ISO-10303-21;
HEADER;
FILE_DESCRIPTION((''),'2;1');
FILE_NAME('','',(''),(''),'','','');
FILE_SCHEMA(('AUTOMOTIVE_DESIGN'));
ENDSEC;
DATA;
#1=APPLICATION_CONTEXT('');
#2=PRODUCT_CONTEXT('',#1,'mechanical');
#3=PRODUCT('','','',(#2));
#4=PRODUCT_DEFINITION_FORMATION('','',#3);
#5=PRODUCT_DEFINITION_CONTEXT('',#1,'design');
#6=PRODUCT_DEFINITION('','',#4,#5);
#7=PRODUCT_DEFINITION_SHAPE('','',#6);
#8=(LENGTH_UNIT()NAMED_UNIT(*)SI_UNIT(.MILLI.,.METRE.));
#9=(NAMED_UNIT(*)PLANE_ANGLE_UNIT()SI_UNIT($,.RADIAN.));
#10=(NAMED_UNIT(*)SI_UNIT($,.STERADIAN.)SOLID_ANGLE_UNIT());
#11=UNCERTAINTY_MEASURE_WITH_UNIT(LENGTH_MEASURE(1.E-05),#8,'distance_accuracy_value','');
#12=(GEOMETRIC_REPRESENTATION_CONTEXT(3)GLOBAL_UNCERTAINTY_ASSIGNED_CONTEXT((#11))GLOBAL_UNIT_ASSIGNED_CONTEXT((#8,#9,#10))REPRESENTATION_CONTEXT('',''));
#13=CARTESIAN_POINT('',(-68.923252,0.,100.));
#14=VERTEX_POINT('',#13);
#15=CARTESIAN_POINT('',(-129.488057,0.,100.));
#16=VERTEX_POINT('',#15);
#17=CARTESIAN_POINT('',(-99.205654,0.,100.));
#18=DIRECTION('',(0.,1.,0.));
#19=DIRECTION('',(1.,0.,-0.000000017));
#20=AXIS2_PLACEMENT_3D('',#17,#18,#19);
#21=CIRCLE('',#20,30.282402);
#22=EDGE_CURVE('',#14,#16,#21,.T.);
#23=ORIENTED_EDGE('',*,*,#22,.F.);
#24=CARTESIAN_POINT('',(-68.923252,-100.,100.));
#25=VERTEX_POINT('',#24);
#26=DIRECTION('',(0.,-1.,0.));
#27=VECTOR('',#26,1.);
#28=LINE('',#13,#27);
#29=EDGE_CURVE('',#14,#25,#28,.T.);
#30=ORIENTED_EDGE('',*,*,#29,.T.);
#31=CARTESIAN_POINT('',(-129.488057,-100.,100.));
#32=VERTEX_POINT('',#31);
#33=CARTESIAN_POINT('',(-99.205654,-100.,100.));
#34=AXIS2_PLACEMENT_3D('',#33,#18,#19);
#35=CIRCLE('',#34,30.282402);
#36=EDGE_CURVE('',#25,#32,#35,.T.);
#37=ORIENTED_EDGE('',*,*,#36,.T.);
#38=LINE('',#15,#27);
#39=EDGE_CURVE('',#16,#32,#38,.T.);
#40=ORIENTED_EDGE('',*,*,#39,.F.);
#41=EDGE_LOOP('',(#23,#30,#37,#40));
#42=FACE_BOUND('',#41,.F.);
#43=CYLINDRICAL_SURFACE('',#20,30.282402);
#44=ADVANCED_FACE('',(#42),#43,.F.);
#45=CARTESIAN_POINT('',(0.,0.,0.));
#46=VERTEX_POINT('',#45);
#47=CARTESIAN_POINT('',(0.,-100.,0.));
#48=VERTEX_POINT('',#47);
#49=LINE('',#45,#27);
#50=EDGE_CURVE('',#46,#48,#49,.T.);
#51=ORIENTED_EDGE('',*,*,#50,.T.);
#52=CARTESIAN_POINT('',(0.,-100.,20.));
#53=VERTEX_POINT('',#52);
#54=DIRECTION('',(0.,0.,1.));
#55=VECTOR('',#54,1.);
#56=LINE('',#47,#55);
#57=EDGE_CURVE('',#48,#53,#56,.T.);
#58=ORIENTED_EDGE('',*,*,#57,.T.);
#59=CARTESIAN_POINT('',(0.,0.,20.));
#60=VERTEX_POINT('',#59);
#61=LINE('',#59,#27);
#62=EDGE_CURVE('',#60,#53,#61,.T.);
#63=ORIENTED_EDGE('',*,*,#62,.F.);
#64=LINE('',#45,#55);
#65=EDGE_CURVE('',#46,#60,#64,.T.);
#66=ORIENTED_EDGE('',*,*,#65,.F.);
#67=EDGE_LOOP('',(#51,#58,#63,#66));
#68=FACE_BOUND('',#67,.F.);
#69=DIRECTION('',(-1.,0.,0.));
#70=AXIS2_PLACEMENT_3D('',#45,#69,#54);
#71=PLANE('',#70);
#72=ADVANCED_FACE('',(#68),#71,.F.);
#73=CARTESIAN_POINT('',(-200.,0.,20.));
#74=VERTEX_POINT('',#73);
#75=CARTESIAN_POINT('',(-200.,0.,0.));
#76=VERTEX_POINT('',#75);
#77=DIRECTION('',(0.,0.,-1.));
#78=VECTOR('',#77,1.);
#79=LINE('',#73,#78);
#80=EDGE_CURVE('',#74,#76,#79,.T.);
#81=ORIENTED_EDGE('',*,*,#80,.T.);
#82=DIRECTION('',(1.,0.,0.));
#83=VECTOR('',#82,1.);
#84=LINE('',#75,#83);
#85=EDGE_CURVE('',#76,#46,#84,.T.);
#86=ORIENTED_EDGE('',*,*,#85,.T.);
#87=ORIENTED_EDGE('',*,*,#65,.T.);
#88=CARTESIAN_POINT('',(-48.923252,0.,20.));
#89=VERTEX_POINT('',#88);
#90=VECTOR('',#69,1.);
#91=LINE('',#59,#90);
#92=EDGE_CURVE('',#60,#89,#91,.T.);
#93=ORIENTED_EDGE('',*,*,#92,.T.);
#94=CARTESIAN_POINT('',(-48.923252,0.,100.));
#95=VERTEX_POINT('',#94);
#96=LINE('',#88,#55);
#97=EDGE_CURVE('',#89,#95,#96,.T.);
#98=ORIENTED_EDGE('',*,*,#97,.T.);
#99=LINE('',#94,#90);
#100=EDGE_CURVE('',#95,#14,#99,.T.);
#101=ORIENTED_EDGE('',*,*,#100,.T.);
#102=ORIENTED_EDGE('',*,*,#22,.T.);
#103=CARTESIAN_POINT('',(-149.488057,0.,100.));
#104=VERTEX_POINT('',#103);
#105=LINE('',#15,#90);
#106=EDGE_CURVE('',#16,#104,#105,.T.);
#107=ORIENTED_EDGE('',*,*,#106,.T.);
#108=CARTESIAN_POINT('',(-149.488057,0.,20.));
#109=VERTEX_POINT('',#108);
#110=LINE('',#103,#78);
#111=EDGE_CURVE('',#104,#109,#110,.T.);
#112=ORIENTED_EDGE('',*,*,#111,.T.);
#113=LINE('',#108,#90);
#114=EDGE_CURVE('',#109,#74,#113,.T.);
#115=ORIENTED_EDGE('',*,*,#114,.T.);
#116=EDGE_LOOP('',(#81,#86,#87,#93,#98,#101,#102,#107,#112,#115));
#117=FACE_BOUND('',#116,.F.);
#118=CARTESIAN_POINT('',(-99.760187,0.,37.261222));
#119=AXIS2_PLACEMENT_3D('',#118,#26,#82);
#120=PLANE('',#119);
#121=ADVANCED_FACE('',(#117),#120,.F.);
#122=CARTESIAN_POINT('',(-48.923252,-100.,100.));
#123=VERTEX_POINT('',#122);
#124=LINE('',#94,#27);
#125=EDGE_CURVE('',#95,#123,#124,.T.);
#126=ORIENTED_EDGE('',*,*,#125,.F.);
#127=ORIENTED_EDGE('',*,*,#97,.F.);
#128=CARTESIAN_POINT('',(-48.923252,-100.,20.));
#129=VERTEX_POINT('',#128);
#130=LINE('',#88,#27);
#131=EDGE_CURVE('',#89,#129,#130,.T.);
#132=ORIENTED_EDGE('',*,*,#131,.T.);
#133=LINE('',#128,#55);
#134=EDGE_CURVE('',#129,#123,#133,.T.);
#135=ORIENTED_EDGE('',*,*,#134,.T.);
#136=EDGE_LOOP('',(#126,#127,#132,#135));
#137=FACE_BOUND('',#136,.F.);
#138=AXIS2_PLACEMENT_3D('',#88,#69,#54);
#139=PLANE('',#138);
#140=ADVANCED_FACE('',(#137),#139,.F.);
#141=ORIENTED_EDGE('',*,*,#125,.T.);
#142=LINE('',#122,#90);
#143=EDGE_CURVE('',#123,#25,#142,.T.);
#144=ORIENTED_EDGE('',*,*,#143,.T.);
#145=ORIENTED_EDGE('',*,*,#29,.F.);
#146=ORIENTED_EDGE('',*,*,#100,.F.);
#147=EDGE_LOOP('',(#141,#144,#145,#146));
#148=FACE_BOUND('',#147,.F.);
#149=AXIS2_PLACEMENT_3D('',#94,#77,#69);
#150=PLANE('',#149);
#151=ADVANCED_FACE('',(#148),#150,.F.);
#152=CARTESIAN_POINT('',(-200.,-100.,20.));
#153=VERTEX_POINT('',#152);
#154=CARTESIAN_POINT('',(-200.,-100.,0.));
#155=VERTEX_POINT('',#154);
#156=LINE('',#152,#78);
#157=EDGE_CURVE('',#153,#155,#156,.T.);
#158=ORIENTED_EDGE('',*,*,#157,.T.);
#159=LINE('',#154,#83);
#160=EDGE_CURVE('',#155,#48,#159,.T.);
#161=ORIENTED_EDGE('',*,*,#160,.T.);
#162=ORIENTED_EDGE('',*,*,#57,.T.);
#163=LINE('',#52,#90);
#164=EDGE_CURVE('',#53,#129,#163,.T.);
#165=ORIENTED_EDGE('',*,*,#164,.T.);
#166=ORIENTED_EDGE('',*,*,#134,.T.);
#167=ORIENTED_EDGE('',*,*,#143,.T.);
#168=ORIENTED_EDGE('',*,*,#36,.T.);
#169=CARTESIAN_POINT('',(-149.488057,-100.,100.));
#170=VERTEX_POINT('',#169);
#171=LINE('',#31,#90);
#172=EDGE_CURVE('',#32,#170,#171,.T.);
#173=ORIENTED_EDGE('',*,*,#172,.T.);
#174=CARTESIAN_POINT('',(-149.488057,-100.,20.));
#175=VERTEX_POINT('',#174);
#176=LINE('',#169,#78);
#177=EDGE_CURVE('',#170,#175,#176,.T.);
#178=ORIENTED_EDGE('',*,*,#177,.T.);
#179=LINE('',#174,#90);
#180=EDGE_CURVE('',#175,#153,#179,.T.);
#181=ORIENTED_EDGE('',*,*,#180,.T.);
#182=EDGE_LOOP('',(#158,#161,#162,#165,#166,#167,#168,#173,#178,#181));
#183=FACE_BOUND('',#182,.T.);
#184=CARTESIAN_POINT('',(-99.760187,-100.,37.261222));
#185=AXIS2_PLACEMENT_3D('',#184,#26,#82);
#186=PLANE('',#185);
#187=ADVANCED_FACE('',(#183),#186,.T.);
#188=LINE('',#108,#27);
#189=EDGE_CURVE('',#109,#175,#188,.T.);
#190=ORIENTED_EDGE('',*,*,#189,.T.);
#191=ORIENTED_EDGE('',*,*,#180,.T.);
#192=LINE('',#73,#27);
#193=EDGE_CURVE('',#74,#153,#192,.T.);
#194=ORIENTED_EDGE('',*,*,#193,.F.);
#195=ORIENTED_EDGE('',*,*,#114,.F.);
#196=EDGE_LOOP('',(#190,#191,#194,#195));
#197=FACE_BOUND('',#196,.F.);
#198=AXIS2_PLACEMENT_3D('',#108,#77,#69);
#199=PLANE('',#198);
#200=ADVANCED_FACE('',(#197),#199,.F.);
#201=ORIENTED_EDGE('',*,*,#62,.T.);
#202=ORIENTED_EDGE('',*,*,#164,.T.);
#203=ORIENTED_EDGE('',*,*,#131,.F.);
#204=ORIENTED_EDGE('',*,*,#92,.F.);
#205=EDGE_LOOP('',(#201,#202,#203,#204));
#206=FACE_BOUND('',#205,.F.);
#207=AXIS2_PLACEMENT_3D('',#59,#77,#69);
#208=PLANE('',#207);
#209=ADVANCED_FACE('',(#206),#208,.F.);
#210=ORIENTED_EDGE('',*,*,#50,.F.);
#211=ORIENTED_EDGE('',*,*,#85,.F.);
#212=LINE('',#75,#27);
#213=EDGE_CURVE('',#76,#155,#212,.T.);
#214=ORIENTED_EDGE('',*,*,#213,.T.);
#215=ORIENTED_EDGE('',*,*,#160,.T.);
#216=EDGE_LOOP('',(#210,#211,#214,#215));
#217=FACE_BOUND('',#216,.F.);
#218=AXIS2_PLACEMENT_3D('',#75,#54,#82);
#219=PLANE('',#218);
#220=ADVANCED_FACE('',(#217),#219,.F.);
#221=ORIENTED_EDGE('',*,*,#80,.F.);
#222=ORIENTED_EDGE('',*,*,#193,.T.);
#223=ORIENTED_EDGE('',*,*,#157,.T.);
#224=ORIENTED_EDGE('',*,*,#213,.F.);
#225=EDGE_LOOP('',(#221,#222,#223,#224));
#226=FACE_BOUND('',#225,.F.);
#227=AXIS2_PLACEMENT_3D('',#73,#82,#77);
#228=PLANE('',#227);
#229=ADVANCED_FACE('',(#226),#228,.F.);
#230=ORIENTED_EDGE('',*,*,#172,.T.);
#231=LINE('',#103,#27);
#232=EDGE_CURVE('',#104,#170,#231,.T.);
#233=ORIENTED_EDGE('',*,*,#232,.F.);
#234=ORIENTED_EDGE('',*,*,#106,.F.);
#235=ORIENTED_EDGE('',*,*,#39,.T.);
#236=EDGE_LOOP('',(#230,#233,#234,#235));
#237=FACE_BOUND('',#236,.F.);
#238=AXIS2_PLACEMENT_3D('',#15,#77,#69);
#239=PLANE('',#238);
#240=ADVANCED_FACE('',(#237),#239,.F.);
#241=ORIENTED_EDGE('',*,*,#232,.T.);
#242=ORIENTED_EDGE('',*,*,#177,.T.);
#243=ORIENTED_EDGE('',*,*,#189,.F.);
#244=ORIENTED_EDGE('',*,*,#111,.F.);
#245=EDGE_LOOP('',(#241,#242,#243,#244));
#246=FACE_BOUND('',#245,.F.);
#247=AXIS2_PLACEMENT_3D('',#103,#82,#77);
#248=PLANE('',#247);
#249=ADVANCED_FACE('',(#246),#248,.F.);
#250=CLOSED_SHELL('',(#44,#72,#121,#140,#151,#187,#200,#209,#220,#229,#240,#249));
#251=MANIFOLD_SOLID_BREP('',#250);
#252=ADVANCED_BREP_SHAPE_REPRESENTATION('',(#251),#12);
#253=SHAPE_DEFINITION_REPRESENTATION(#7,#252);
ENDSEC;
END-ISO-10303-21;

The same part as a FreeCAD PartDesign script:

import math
import FreeCAD as App
import Part
import Sketcher

V = App.Vector
Q = App.Units.Quantity

doc = App.newDocument("Part")
params = doc.addObject("Spreadsheet::Sheet", "Params")
for row, (alias, value) in enumerate([
    ("sketch1_width", "200 mm"),
    ("sketch1_width2", "20 mm"),
    ("sketch1_height", "80 mm"),
    ("pad1_length", "100 mm"),
], start=1):
    params.set(f"A{row}", alias)
    params.set(f"B{row}", "=" + value)
    params.setAlias(f"B{row}", alias)

body = doc.addObject("PartDesign::Body", "Body")

# Sketch on XZ plane
sketch1 = body.newObject("Sketcher::SketchObject", "Sketch")
sketch1.AttachmentSupport = (doc.getObject("XZ_Plane"), [""])
sketch1.MapMode = "FlatFace"
sketch1.addGeometry(Part.LineSegment(V(-200, 0, 0), V(0, 0, 0)), False)
sketch1.addGeometry(Part.LineSegment(V(0, 0, 0), V(0, 20, 0)), False)
sketch1.addGeometry(Part.LineSegment(V(0, 20, 0), V(-48.923252, 20, 0)), False)
sketch1.addGeometry(Part.LineSegment(V(-48.923252, 20, 0), V(-48.923252, 100, 0)), False)
sketch1.addGeometry(Part.LineSegment(V(-48.923252, 100, 0), V(-68.923252, 100, 0)), False)
sketch1.addGeometry(Part.ArcOfCircle(Part.Circle(V(-99.205654, 100, 0), V(0, 0, 1), 30.282402), math.radians(-179.999999), math.radians(-0.000001)), False)
sketch1.addGeometry(Part.LineSegment(V(-129.488057, 100, 0), V(-149.488057, 100, 0)), False)
sketch1.addGeometry(Part.LineSegment(V(-149.488057, 100, 0), V(-149.488057, 20, 0)), False)
sketch1.addGeometry(Part.LineSegment(V(-149.488057, 20, 0), V(-200, 20, 0)), False)
sketch1.addGeometry(Part.LineSegment(V(-200, 20, 0), V(-200, 0, 0)), False)
sketch1.addConstraint(Sketcher.Constraint("Coincident", 0, 2, 1, 1))
sketch1.addConstraint(Sketcher.Constraint("Coincident", 1, 2, 2, 1))
sketch1.addConstraint(Sketcher.Constraint("Coincident", 2, 2, 3, 1))
sketch1.addConstraint(Sketcher.Constraint("Coincident", 3, 2, 4, 1))
sketch1.addConstraint(Sketcher.Constraint("Coincident", 4, 2, 5, 2))
sketch1.addConstraint(Sketcher.Constraint("Coincident", 5, 1, 6, 1))
sketch1.addConstraint(Sketcher.Constraint("Coincident", 6, 2, 7, 1))
sketch1.addConstraint(Sketcher.Constraint("Coincident", 7, 2, 8, 1))
sketch1.addConstraint(Sketcher.Constraint("Coincident", 8, 2, 9, 1))
sketch1.addConstraint(Sketcher.Constraint("Coincident", 9, 2, 0, 1))
sketch1.addConstraint(Sketcher.Constraint("Horizontal", 0))
sketch1.addConstraint(Sketcher.Constraint("Vertical", 1))
sketch1.addConstraint(Sketcher.Constraint("Horizontal", 2))
sketch1.addConstraint(Sketcher.Constraint("Vertical", 3))
sketch1.addConstraint(Sketcher.Constraint("Horizontal", 4))
sketch1.addConstraint(Sketcher.Constraint("Horizontal", 6))
sketch1.addConstraint(Sketcher.Constraint("Vertical", 7))
sketch1.addConstraint(Sketcher.Constraint("Horizontal", 8))
sketch1.addConstraint(Sketcher.Constraint("Vertical", 9))
sketch1.addConstraint(Sketcher.Constraint("Coincident", 0, 2, -1, 1))
sketch1.addConstraint(Sketcher.Constraint("Horizontal", 5, 3, 3, 2))
sketch1.addConstraint(Sketcher.Constraint("Horizontal", 4, 2, 5, 1))
sketch1.addConstraint(Sketcher.Constraint("Horizontal", 2, 2, 7, 2))
sketch1.addConstraint(Sketcher.Constraint("Equal", 4, 6))
sketch1.addConstraint(Sketcher.Constraint("Equal", 6, 1))
sketch1.addConstraint(Sketcher.Constraint("DistanceX", 0, 1, 0, 2, Q("200 mm")))
sketch1.addConstraint(Sketcher.Constraint("DistanceX", 4, 2, 4, 1, Q("20 mm")))
sketch1.addConstraint(Sketcher.Constraint("DistanceY", 3, 1, 3, 2, Q("80 mm")))
sketch1.addConstraint(Sketcher.Constraint("Radius", 5, Q("30.282402 mm")))
sketch1.addConstraint(Sketcher.Constraint("DistanceX", 2, 2, 2, 1, Q("48.923252 mm")))
sketch1.setExpression("Constraints[25]", "Params.sketch1_width")
sketch1.setExpression("Constraints[26]", "Params.sketch1_width2")
sketch1.setExpression("Constraints[27]", "Params.sketch1_height")
pad1 = body.newObject("PartDesign::Pad", "Pad")
pad1.Profile = sketch1
pad1.setExpression("Length", "Params.pad1_length")

doc.recompute()
